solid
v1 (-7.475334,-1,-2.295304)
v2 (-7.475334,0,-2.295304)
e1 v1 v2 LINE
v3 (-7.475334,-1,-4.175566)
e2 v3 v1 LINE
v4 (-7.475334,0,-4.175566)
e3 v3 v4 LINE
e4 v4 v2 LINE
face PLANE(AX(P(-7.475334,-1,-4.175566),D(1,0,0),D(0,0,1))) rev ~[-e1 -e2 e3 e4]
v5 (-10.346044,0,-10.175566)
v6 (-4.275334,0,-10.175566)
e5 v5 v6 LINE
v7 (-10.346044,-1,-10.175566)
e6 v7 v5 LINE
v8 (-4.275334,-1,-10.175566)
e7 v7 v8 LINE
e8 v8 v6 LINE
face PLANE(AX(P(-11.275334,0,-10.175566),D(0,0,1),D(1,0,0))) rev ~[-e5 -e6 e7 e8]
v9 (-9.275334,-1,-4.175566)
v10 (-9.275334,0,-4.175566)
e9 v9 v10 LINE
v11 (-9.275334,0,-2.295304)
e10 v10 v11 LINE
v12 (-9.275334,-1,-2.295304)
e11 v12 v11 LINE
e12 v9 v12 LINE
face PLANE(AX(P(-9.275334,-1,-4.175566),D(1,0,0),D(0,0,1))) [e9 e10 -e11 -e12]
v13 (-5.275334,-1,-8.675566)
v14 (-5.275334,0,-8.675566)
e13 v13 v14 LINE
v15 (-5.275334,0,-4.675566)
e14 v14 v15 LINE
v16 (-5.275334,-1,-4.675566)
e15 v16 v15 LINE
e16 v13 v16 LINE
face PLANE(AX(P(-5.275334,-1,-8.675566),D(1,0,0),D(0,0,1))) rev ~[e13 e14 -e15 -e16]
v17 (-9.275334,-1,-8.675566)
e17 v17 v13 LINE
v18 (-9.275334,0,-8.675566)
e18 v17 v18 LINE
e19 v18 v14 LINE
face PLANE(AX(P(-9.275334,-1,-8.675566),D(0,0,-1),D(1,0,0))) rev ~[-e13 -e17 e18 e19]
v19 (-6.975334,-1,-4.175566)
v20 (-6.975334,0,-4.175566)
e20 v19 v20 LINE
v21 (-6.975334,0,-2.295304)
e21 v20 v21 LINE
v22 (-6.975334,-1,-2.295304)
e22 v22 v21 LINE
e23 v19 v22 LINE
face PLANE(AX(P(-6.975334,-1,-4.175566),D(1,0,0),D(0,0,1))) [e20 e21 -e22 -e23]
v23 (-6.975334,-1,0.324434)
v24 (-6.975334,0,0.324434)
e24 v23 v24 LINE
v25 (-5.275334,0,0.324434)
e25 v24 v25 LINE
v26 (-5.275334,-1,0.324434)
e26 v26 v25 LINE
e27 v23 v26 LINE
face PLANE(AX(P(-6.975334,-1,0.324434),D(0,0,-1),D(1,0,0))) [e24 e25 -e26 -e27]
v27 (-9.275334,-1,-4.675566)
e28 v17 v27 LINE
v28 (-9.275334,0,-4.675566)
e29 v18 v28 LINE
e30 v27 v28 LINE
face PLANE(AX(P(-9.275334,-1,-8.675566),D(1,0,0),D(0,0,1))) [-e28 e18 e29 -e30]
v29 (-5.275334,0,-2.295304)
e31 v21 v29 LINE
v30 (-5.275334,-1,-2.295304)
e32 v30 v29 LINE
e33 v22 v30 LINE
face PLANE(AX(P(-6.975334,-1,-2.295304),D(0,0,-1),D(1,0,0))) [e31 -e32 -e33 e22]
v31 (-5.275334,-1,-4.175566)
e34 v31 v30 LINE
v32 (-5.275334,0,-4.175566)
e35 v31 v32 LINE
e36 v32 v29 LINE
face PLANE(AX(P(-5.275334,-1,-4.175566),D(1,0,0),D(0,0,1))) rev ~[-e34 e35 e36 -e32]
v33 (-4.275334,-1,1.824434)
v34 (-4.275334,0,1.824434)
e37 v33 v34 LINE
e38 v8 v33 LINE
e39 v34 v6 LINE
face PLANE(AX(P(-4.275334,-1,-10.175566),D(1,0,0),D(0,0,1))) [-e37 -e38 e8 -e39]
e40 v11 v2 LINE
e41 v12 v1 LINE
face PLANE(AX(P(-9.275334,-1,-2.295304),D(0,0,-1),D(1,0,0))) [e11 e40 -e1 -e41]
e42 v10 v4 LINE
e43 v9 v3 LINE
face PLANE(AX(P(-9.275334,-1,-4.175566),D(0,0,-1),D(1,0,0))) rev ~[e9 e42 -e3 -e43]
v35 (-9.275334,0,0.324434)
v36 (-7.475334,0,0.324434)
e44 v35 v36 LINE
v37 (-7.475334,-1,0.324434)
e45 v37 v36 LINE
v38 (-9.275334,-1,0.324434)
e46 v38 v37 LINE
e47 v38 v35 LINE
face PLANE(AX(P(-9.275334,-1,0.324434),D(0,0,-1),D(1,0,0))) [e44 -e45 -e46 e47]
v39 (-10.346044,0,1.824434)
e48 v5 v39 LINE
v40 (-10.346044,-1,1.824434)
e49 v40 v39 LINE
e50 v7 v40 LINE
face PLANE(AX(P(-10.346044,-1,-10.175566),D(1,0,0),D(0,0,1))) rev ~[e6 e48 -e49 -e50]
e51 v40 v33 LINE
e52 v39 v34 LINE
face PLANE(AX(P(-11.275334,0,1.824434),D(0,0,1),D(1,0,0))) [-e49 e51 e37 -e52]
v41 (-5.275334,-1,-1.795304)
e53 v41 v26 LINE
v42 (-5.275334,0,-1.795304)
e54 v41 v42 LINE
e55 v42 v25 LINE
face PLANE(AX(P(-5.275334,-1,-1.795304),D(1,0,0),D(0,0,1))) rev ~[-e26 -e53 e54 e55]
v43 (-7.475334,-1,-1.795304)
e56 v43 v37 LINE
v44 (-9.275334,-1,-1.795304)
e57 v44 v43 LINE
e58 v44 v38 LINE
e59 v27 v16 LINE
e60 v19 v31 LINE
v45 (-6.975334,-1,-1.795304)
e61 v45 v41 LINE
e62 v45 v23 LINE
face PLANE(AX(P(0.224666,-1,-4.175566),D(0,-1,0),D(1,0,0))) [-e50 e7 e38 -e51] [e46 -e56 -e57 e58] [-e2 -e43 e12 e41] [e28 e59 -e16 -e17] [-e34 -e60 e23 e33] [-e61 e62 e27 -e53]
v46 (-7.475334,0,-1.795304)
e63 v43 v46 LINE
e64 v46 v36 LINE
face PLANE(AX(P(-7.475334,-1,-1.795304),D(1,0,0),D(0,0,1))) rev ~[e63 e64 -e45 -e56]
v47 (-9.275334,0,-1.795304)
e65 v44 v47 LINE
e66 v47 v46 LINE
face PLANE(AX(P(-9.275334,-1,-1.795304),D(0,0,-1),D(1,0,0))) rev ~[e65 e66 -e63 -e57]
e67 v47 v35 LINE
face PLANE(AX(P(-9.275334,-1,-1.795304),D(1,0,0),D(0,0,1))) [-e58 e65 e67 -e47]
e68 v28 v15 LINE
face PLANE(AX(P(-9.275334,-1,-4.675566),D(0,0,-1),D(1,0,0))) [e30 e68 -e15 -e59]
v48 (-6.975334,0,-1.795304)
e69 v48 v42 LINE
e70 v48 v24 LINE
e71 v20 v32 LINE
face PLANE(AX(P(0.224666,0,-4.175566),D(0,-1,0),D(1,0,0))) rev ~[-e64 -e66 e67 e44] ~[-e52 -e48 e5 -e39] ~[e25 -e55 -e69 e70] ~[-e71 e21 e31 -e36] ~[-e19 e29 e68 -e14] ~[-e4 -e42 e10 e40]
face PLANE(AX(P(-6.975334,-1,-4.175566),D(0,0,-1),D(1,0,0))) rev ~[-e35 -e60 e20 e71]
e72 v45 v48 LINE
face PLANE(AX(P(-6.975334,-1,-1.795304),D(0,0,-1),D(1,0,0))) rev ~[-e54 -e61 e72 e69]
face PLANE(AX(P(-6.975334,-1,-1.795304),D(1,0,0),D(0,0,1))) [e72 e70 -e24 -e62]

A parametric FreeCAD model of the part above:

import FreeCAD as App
import Part
import Sketcher
Q = App.Units.Quantity


def add_polygon(sketch, points):
    """Adds a closed chain of lines whose ends are joined by coincident constraints."""
    first, n = sketch.GeometryCount, len(points)
    for a, b in zip(points, points[1:] + points[:1]):
        sketch.addGeometry(Part.LineSegment(App.Vector(*a, 0), App.Vector(*b, 0)), False)
    for i in range(n):
        sketch.addConstraint(Sketcher.Constraint("Coincident", first + i, 2, first + (i + 1) % n, 1))

doc = App.newDocument("Part")
params = doc.addObject("Spreadsheet::Sheet", "Params")
for row, (alias, value) in enumerate([
    ("sketch1_width", "23 mm"),
    ("sketch1_height", "12 mm"),
    ("pad1_length", "1 mm"),
    ("sketch2_width", "4 mm"),
    ("sketch2_width2", "9 mm"),
    ("sketch2_width3", "1.8 mm"),
    ("sketch2_width4", "1.7 mm"),
    ("sketch2_width5", "1.95 mm"),
    ("pocket1_length", "5 mm"),
    ("sketch3_width", "16 mm"),
    ("sketch3_height", "12 mm"),
    ("pocket2_length", "5 mm"),
    ("sketch4_height", "12 mm"),
    ("pocket3_length", "5 mm"),
], start=1):
    params.set(f"A{row}", alias)
    params.set(f"B{row}", "=" + value)
    params.setAlias(f"B{row}", alias)

body = doc.addObject("PartDesign::Body", "Body")

# Sketch on XZ plane
sketch1 = body.newObject("Sketcher::SketchObject", "Sketch")
sketch1.AttachmentSupport = (doc.getObject("XZ_Plane"), [""])
sketch1.MapMode = "FlatFace"
add_polygon(sketch1, [(-11, 2), (-11, -10), (12, -10), (12, 2)])  # lines 0-3
sketch1.addConstraint([
    Sketcher.Constraint("Vertical", 0),
    Sketcher.Constraint("Horizontal", 1),
    Sketcher.Constraint("Vertical", 2),
    Sketcher.Constraint("Horizontal", 3),
    Sketcher.Constraint("DistanceX", 1, 1, 1, 2, Q("23 mm")),
    Sketcher.Constraint("DistanceY", 0, 2, 0, 1, Q("12 mm")),
    Sketcher.Constraint("DistanceX", 0, 2, -1, 1, Q("11.275334 mm")),
    Sketcher.Constraint("DistanceY", 0, 2, -1, 1, Q("10.175566 mm")),
])
sketch1.setExpression("Constraints[8]", "Params.sketch1_width")
sketch1.setExpression("Constraints[9]", "Params.sketch1_height")
pad1 = body.newObject("PartDesign::Pad", "Pad")
pad1.Profile = sketch1
pad1.setExpression("Length", "Params.pad1_length")

# Sketch on XZ plane
sketch2 = body.newObject("Sketcher::SketchObject", "Sketch001")
sketch2.AttachmentSupport = (doc.getObject("XZ_Plane"), [""])
sketch2.MapMode = "FlatFace"
sketch2.AttachmentOffset = App.Placement(App.Vector(0, 0, 1), App.Rotation())
add_polygon(sketch2, [(-9.3, -4.7), (-9.3, -8.7), (-5.3, -8.7), (-5.3, -4.7)])  # lines 0-3
add_polygon(sketch2, [(5.7, -4.7), (5.7, -8.7), (9.7, -8.7), (9.7, -4.7)])  # lines 4-7
add_polygon(sketch2, [(-4.3, -4.7), (-4.3, -8.7), (4.7, -8.7), (4.7, -4.7)])  # lines 8-11
add_polygon(sketch2, [(-9.3, 0.3), (-9.3, -1.8), (-7.5, -1.8), (-7.5, 0.3)])  # lines 12-15
add_polygon(sketch2, [(-7, 0.3), (-7, -1.8), (-5.3, -1.8), (-5.3, 0.3)])  # lines 16-19
add_polygon(sketch2, [(-9.3, -2.3), (-9.3, -4.2), (-7.5, -4.2), (-7.5, -2.3)])  # lines 20-23
add_polygon(sketch2, [(-7, -2.3), (-7, -4.2), (-5.3, -4.2), (-5.3, -2.3)])  # lines 24-27
add_polygon(sketch2, [(-4.3, 0.3), (-4.3, -1.8), (-2.5, -1.8), (-2.5, 0.3)])  # lines 28-31
add_polygon(sketch2, [(-2, 0.3), (-2, -1.8), (0, -1.8), (0, 0.3)])  # lines 32-35
add_polygon(sketch2, [(-4.3, -2.3), (-4.3, -4.2), (-2.5, -4.2), (-2.5, -2.3)])  # lines 36-39
add_polygon(sketch2, [(-2, -2.3), (-2, -4.2), (0, -4.2), (0, -2.3)])  # lines 40-43
add_polygon(sketch2, [(0.5, 0.3), (0.5, -1.8), (2.3, -1.8), (2.3, 0.3)])  # lines 44-47
add_polygon(sketch2, [(2.8, 0.3), (2.8, -1.8), (4.6, -1.8), (4.6, 0.3)])  # lines 48-51
add_polygon(sketch2, [(0.5, -2.3), (0.5, -4.2), (2.3, -4.2), (2.3, -2.3)])  # lines 52-55
add_polygon(sketch2, [(2.8, -2.3), (2.8, -4.2), (4.7, -4.2), (4.7, -2.3)])  # lines 56-59
add_polygon(sketch2, [(5.7, 0.3), (5.7, -1.8), (7.5, -1.8), (7.5, 0.3)])  # lines 60-63
add_polygon(sketch2, [(8, 0.3), (8, -1.8), (9.7, -1.8), (9.7, 0.3)])  # lines 64-67
add_polygon(sketch2, [(5.7, -2.3), (5.7, -4.2), (7.5, -4.2), (7.5, -2.3)])  # lines 68-71
add_polygon(sketch2, [(8, -2.3), (8, -4.2), (9.7, -4.2), (9.7, -2.3)])  # lines 72-75
sketch2.addConstraint([
    Sketcher.Constraint("Vertical", 0),
    Sketcher.Constraint("Horizontal", 1),
    Sketcher.Constraint("Vertical", 2),
    Sketcher.Constraint("Horizontal", 3),
    Sketcher.Constraint("Vertical", 4),
    Sketcher.Constraint("Horizontal", 5),
    Sketcher.Constraint("Vertical", 6),
    Sketcher.Constraint("Horizontal", 7),
    Sketcher.Constraint("Vertical", 8),
    Sketcher.Constraint("Horizontal", 9),
    Sketcher.Constraint("Vertical", 10),
    Sketcher.Constraint("Horizontal", 11),
    Sketcher.Constraint("Vertical", 12),
    Sketcher.Constraint("Horizontal", 13),
    Sketcher.Constraint("Vertical", 14),
    Sketcher.Constraint("Horizontal", 15),
    Sketcher.Constraint("Vertical", 16),
    Sketcher.Constraint("Horizontal", 17),
    Sketcher.Constraint("Vertical", 18),
    Sketcher.Constraint("Horizontal", 19),
    Sketcher.Constraint("Vertical", 20),
    Sketcher.Constraint("Horizontal", 21),
    Sketcher.Constraint("Vertical", 22),
    Sketcher.Constraint("Horizontal", 23),
    Sketcher.Constraint("Vertical", 24),
    Sketcher.Constraint("Horizontal", 25),
    Sketcher.Constraint("Vertical", 26),
    Sketcher.Constraint("Horizontal", 27),
    Sketcher.Constraint("Vertical", 28),
    Sketcher.Constraint("Horizontal", 29),
    Sketcher.Constraint("Vertical", 30),
    Sketcher.Constraint("Horizontal", 31),
    Sketcher.Constraint("Vertical", 32),
    Sketcher.Constraint("Horizontal", 33),
    Sketcher.Constraint("Vertical", 34),
    Sketcher.Constraint("Horizontal", 35),
    Sketcher.Constraint("Vertical", 36),
    Sketcher.Constraint("Horizontal", 37),
    Sketcher.Constraint("Vertical", 38),
    Sketcher.Constraint("Horizontal", 39),
    Sketcher.Constraint("Vertical", 40),
    Sketcher.Constraint("Horizontal", 41),
    Sketcher.Constraint("Vertical", 42),
    Sketcher.Constraint("Horizontal", 43),
    Sketcher.Constraint("Vertical", 44),
    Sketcher.Constraint("Horizontal", 45),
    Sketcher.Constraint("Vertical", 46),
    Sketcher.Constraint("Horizontal", 47),
    Sketcher.Constraint("Vertical", 48),
    Sketcher.Constraint("Horizontal", 49),
    Sketcher.Constraint("Vertical", 50),
    Sketcher.Constraint("Horizontal", 51),
    Sketcher.Constraint("Vertical", 52),
    Sketcher.Constraint("Horizontal", 53),
    Sketcher.Constraint("Vertical", 54),
    Sketcher.Constraint("Horizontal", 55),
    Sketcher.Constraint("Vertical", 56),
    Sketcher.Constraint("Horizontal", 57),
    Sketcher.Constraint("Vertical", 58),
    Sketcher.Constraint("Horizontal", 59),
    Sketcher.Constraint("Vertical", 60),
    Sketcher.Constraint("Horizontal", 61),
    Sketcher.Constraint("Vertical", 62),
    Sketcher.Constraint("Horizontal", 63),
    Sketcher.Constraint("Vertical", 64),
    Sketcher.Constraint("Horizontal", 65),
    Sketcher.Constraint("Vertical", 66),
    Sketcher.Constraint("Horizontal", 67),
    Sketcher.Constraint("Vertical", 68),
    Sketcher.Constraint("Horizontal", 69),
    Sketcher.Constraint("Vertical", 70),
    Sketcher.Constraint("Horizontal", 71),
    Sketcher.Constraint("Vertical", 72),
    Sketcher.Constraint("Horizontal", 73),
    Sketcher.Constraint("Vertical", 74),
    Sketcher.Constraint("Horizontal", 75),
    Sketcher.Constraint("Horizontal", 1, 2, 4, 2),
    Sketcher.Constraint("Horizontal", 3, 2, 6, 2),
    Sketcher.Constraint("Horizontal", 5, 2, 8, 2),
    Sketcher.Constraint("Horizontal", 7, 2, 10, 2),
    Sketcher.Constraint("Horizontal", 13, 2, 16, 2),
    Sketcher.Constraint("Horizontal", 15, 2, 18, 2),
    Sketcher.Constraint("Horizontal", 21, 2, 24, 2),
    Sketcher.Constraint("Horizontal", 23, 2, 26, 2),
    Sketcher.Constraint("Horizontal", 19, 2, 30, 2),
    Sketcher.Constraint("Horizontal", 29, 2, 32, 2),
    Sketcher.Constraint("Horizontal", 31, 2, 34, 2),
    Sketcher.Constraint("Horizontal", 37, 2, 40, 2),
    Sketcher.Constraint("Horizontal", 39, 2, 42, 2),
    Sketcher.Constraint("Horizontal", 33, 2, 44, 2),
    Sketcher.Constraint("Horizontal", 35, 2, 46, 2),
    Sketcher.Constraint("Horizontal", 45, 2, 48, 2),
    Sketcher.Constraint("Horizontal", 41, 2, 52, 2),
    Sketcher.Constraint("Horizontal", 43, 2, 54, 2),
    Sketcher.Constraint("Horizontal", 53, 2, 56, 2),
    Sketcher.Constraint("Horizontal", 55, 2, 58, 2),
    Sketcher.Constraint("Horizontal", 61, 2, 64, 2),
    Sketcher.Constraint("Horizontal", 63, 2, 66, 2),
    Sketcher.Constraint("Horizontal", 69, 2, 72, 2),
    Sketcher.Constraint("Horizontal", 71, 2, 74, 2),
    Sketcher.Constraint("Vertical", 3, 2, 12, 2),
    Sketcher.Constraint("Vertical", 2, 2, 17, 2),
    Sketcher.Constraint("Vertical", 15, 2, 20, 2),
    Sketcher.Constraint("Vertical", 14, 2, 21, 2),
    Sketcher.Constraint("Vertical", 19, 2, 24, 2),
    Sketcher.Constraint("Vertical", 18, 2, 25, 2),
    Sketcher.Constraint("Vertical", 11, 2, 28, 2),
    Sketcher.Constraint("Vertical", 31, 2, 36, 2),
    Sketcher.Constraint("Vertical", 30, 2, 37, 2),
    Sketcher.Constraint("Vertical", 35, 2, 40, 2),
    Sketcher.Constraint("Vertical", 34, 2, 41, 2),
    Sketcher.Constraint("Vertical", 47, 2, 52, 2),
    Sketcher.Constraint("Vertical", 46, 2, 53, 2),
    Sketcher.Constraint("Vertical", 51, 2, 56, 2),
    Sketcher.Constraint("Vertical", 10, 2, 57, 2),
    Sketcher.Constraint("Vertical", 7, 2, 60, 2),
    Sketcher.Constraint("Vertical", 6, 2, 65, 2),
    Sketcher.Constraint("Vertical", 63, 2, 68, 2),
    Sketcher.Constraint("Vertical", 62, 2, 69, 2),
    Sketcher.Constraint("Vertical", 67, 2, 72, 2),
    Sketcher.Constraint("Vertical", 66, 2, 73, 2),
    Sketcher.Constraint("Equal", 3, 5),
    Sketcher.Constraint("Equal", 23, 29),
    Sketcher.Constraint("Equal", 39, 45),
    Sketcher.Constraint("Equal", 47, 49),
    Sketcher.Constraint("Equal", 43, 57),
    Sketcher.Constraint("Equal", 55, 61),
    Sketcher.Constraint("Equal", 27, 65),
    Sketcher.Constraint("Equal", 7, 0),
    Sketcher.Constraint("Equal", 26, 36),
    Sketcher.Constraint("Equal", 18, 48),
    Sketcher.Constraint("Equal", 50, 60),
    Sketcher.Constraint("Equal", 58, 68),
    Sketcher.Constraint("DistanceX", 1, 1, 1, 2, Q("4 mm")),
    Sketcher.Constraint("DistanceX", 9, 1, 9, 2, Q("9 mm")),
    Sketcher.Constraint("DistanceX", 13, 1, 13, 2, Q("1.8 mm")),
    Sketcher.Constraint("DistanceX", 17, 1, 17, 2, Q("1.7 mm")),
    Sketcher.Constraint("DistanceX", 33, 1, 33, 2, Q("1.95 mm")),
    Sketcher.Constraint("DistanceY", 68, 2, 68, 1, Q("1.880262 mm")),
    Sketcher.Constraint("DistanceY", 12, 2, 12, 1, Q("2.119738 mm")),
    Sketcher.Constraint("DistanceY", 28, 2, 28, 1, Q("2.108956 mm")),
    Sketcher.Constraint("DistanceY", 28, 2, -1, 1, Q("1.784522 mm")),
    Sketcher.Constraint("DistanceX", 0, 2, -1, 1, Q("9.275334 mm")),
    Sketcher.Constraint("DistanceY", 0, 2, -1, 1, Q("8.675566 mm")),
    Sketcher.Constraint("DistanceX", -1, 1, 4, 2, Q("5.724666 mm")),
    Sketcher.Constraint("DistanceX", 8, 2, -1, 1, Q("4.275334 mm")),
    Sketcher.Constraint("DistanceY", 20, 2, -1, 1, Q("4.175566 mm")),
    Sketcher.Constraint("DistanceX", 32, 2, -1, 1, Q("1.975334 mm")),
    Sketcher.Constraint("DistanceY", 36, 2, -1, 1, Q("4.164785 mm")),
    Sketcher.Constraint("DistanceX", -1, 1, 44, 2, Q("0.474666 mm")),
    Sketcher.Constraint("DistanceY", 60, 2, -1, 1, Q("1.792093 mm")),
    Sketcher.Constraint("DistanceY", 68, 2, -1, 1, Q("4.172355 mm")),
])
sketch2.setExpression("Constraints[209]", "Params.sketch2_width")
sketch2.setExpression("Constraints[210]", "Params.sketch2_width2")
sketch2.setExpression("Constraints[211]", "Params.sketch2_width3")
sketch2.setExpression("Constraints[212]", "Params.sketch2_width4")
sketch2.setExpression("Constraints[213]", "Params.sketch2_width5")
pocket1 = body.newObject("PartDesign::Pocket", "Pocket")
pocket1.Profile = sketch2
pocket1.setExpression("Length", "Params.pocket1_length")

# Sketch on XZ plane
sketch3 = body.newObject("Sketcher::SketchObject", "Sketch002")
sketch3.AttachmentSupport = (doc.getObject("XZ_Plane"), [""])
sketch3.MapMode = "FlatFace"
sketch3.AttachmentOffset = App.Placement(App.Vector(0, 0, 1), App.Rotation())
add_polygon(sketch3, [(-4, 2), (-4, -10), (12, -10), (12, 2)])  # lines 0-3
sketch3.addConstraint([
    Sketcher.Constraint("Vertical", 0),
    Sketcher.Constraint("Horizontal", 1),
    Sketcher.Constraint("Vertical", 2),
    Sketcher.Constraint("Horizontal", 3),
    Sketcher.Constraint("DistanceX", 1, 1, 1, 2, Q("16 mm")),
    Sketcher.Constraint("DistanceY", 0, 2, 0, 1, Q("12 mm")),
    Sketcher.Constraint("DistanceX", 0, 2, -1, 1, Q("4.275334 mm")),
    Sketcher.Constraint("DistanceY", 0, 2, -1, 1, Q("10.175566 mm")),
])
sketch3.setExpression("Constraints[8]", "Params.sketch3_width")
sketch3.setExpression("Constraints[9]", "Params.sketch3_height")
pocket2 = body.newObject("PartDesign::Pocket", "Pocket001")
pocket2.Profile = sketch3
pocket2.setExpression("Length", "Params.pocket2_length")

# Sketch on XZ plane
sketch4 = body.newObject("Sketcher::SketchObject", "Sketch003")
sketch4.AttachmentSupport = (doc.getObject("XZ_Plane"), [""])
sketch4.MapMode = "FlatFace"
sketch4.AttachmentOffset = App.Placement(App.Vector(0, 0, 1), App.Rotation())
add_polygon(sketch4, [(-11.3, 1.8), (-11.3, -10.2), (-10.3, -10.2), (-10.3, 1.8)])  # lines 0-3
sketch4.addConstraint([
    Sketcher.Constraint("Vertical", 0),
    Sketcher.Constraint("Horizontal", 1),
    Sketcher.Constraint("Vertical", 2),
    Sketcher.Constraint("Horizontal", 3),
    Sketcher.Constraint("DistanceY", 0, 2, 0, 1, Q("12 mm")),
    Sketcher.Constraint("DistanceX", 1, 1, 1, 2, Q("0.92929 mm")),
    Sketcher.Constraint("DistanceX", 0, 2, -1, 1, Q("11.275334 mm")),
    Sketcher.Constraint("DistanceY", 0, 2, -1, 1, Q("10.175566 mm")),
])
sketch4.setExpression("Constraints[8]", "Params.sketch4_height")
pocket3 = body.newObject("PartDesign::Pocket", "Pocket002")
pocket3.Profile = sketch4
pocket3.setExpression("Length", "Params.pocket3_length")

doc.recompute()
